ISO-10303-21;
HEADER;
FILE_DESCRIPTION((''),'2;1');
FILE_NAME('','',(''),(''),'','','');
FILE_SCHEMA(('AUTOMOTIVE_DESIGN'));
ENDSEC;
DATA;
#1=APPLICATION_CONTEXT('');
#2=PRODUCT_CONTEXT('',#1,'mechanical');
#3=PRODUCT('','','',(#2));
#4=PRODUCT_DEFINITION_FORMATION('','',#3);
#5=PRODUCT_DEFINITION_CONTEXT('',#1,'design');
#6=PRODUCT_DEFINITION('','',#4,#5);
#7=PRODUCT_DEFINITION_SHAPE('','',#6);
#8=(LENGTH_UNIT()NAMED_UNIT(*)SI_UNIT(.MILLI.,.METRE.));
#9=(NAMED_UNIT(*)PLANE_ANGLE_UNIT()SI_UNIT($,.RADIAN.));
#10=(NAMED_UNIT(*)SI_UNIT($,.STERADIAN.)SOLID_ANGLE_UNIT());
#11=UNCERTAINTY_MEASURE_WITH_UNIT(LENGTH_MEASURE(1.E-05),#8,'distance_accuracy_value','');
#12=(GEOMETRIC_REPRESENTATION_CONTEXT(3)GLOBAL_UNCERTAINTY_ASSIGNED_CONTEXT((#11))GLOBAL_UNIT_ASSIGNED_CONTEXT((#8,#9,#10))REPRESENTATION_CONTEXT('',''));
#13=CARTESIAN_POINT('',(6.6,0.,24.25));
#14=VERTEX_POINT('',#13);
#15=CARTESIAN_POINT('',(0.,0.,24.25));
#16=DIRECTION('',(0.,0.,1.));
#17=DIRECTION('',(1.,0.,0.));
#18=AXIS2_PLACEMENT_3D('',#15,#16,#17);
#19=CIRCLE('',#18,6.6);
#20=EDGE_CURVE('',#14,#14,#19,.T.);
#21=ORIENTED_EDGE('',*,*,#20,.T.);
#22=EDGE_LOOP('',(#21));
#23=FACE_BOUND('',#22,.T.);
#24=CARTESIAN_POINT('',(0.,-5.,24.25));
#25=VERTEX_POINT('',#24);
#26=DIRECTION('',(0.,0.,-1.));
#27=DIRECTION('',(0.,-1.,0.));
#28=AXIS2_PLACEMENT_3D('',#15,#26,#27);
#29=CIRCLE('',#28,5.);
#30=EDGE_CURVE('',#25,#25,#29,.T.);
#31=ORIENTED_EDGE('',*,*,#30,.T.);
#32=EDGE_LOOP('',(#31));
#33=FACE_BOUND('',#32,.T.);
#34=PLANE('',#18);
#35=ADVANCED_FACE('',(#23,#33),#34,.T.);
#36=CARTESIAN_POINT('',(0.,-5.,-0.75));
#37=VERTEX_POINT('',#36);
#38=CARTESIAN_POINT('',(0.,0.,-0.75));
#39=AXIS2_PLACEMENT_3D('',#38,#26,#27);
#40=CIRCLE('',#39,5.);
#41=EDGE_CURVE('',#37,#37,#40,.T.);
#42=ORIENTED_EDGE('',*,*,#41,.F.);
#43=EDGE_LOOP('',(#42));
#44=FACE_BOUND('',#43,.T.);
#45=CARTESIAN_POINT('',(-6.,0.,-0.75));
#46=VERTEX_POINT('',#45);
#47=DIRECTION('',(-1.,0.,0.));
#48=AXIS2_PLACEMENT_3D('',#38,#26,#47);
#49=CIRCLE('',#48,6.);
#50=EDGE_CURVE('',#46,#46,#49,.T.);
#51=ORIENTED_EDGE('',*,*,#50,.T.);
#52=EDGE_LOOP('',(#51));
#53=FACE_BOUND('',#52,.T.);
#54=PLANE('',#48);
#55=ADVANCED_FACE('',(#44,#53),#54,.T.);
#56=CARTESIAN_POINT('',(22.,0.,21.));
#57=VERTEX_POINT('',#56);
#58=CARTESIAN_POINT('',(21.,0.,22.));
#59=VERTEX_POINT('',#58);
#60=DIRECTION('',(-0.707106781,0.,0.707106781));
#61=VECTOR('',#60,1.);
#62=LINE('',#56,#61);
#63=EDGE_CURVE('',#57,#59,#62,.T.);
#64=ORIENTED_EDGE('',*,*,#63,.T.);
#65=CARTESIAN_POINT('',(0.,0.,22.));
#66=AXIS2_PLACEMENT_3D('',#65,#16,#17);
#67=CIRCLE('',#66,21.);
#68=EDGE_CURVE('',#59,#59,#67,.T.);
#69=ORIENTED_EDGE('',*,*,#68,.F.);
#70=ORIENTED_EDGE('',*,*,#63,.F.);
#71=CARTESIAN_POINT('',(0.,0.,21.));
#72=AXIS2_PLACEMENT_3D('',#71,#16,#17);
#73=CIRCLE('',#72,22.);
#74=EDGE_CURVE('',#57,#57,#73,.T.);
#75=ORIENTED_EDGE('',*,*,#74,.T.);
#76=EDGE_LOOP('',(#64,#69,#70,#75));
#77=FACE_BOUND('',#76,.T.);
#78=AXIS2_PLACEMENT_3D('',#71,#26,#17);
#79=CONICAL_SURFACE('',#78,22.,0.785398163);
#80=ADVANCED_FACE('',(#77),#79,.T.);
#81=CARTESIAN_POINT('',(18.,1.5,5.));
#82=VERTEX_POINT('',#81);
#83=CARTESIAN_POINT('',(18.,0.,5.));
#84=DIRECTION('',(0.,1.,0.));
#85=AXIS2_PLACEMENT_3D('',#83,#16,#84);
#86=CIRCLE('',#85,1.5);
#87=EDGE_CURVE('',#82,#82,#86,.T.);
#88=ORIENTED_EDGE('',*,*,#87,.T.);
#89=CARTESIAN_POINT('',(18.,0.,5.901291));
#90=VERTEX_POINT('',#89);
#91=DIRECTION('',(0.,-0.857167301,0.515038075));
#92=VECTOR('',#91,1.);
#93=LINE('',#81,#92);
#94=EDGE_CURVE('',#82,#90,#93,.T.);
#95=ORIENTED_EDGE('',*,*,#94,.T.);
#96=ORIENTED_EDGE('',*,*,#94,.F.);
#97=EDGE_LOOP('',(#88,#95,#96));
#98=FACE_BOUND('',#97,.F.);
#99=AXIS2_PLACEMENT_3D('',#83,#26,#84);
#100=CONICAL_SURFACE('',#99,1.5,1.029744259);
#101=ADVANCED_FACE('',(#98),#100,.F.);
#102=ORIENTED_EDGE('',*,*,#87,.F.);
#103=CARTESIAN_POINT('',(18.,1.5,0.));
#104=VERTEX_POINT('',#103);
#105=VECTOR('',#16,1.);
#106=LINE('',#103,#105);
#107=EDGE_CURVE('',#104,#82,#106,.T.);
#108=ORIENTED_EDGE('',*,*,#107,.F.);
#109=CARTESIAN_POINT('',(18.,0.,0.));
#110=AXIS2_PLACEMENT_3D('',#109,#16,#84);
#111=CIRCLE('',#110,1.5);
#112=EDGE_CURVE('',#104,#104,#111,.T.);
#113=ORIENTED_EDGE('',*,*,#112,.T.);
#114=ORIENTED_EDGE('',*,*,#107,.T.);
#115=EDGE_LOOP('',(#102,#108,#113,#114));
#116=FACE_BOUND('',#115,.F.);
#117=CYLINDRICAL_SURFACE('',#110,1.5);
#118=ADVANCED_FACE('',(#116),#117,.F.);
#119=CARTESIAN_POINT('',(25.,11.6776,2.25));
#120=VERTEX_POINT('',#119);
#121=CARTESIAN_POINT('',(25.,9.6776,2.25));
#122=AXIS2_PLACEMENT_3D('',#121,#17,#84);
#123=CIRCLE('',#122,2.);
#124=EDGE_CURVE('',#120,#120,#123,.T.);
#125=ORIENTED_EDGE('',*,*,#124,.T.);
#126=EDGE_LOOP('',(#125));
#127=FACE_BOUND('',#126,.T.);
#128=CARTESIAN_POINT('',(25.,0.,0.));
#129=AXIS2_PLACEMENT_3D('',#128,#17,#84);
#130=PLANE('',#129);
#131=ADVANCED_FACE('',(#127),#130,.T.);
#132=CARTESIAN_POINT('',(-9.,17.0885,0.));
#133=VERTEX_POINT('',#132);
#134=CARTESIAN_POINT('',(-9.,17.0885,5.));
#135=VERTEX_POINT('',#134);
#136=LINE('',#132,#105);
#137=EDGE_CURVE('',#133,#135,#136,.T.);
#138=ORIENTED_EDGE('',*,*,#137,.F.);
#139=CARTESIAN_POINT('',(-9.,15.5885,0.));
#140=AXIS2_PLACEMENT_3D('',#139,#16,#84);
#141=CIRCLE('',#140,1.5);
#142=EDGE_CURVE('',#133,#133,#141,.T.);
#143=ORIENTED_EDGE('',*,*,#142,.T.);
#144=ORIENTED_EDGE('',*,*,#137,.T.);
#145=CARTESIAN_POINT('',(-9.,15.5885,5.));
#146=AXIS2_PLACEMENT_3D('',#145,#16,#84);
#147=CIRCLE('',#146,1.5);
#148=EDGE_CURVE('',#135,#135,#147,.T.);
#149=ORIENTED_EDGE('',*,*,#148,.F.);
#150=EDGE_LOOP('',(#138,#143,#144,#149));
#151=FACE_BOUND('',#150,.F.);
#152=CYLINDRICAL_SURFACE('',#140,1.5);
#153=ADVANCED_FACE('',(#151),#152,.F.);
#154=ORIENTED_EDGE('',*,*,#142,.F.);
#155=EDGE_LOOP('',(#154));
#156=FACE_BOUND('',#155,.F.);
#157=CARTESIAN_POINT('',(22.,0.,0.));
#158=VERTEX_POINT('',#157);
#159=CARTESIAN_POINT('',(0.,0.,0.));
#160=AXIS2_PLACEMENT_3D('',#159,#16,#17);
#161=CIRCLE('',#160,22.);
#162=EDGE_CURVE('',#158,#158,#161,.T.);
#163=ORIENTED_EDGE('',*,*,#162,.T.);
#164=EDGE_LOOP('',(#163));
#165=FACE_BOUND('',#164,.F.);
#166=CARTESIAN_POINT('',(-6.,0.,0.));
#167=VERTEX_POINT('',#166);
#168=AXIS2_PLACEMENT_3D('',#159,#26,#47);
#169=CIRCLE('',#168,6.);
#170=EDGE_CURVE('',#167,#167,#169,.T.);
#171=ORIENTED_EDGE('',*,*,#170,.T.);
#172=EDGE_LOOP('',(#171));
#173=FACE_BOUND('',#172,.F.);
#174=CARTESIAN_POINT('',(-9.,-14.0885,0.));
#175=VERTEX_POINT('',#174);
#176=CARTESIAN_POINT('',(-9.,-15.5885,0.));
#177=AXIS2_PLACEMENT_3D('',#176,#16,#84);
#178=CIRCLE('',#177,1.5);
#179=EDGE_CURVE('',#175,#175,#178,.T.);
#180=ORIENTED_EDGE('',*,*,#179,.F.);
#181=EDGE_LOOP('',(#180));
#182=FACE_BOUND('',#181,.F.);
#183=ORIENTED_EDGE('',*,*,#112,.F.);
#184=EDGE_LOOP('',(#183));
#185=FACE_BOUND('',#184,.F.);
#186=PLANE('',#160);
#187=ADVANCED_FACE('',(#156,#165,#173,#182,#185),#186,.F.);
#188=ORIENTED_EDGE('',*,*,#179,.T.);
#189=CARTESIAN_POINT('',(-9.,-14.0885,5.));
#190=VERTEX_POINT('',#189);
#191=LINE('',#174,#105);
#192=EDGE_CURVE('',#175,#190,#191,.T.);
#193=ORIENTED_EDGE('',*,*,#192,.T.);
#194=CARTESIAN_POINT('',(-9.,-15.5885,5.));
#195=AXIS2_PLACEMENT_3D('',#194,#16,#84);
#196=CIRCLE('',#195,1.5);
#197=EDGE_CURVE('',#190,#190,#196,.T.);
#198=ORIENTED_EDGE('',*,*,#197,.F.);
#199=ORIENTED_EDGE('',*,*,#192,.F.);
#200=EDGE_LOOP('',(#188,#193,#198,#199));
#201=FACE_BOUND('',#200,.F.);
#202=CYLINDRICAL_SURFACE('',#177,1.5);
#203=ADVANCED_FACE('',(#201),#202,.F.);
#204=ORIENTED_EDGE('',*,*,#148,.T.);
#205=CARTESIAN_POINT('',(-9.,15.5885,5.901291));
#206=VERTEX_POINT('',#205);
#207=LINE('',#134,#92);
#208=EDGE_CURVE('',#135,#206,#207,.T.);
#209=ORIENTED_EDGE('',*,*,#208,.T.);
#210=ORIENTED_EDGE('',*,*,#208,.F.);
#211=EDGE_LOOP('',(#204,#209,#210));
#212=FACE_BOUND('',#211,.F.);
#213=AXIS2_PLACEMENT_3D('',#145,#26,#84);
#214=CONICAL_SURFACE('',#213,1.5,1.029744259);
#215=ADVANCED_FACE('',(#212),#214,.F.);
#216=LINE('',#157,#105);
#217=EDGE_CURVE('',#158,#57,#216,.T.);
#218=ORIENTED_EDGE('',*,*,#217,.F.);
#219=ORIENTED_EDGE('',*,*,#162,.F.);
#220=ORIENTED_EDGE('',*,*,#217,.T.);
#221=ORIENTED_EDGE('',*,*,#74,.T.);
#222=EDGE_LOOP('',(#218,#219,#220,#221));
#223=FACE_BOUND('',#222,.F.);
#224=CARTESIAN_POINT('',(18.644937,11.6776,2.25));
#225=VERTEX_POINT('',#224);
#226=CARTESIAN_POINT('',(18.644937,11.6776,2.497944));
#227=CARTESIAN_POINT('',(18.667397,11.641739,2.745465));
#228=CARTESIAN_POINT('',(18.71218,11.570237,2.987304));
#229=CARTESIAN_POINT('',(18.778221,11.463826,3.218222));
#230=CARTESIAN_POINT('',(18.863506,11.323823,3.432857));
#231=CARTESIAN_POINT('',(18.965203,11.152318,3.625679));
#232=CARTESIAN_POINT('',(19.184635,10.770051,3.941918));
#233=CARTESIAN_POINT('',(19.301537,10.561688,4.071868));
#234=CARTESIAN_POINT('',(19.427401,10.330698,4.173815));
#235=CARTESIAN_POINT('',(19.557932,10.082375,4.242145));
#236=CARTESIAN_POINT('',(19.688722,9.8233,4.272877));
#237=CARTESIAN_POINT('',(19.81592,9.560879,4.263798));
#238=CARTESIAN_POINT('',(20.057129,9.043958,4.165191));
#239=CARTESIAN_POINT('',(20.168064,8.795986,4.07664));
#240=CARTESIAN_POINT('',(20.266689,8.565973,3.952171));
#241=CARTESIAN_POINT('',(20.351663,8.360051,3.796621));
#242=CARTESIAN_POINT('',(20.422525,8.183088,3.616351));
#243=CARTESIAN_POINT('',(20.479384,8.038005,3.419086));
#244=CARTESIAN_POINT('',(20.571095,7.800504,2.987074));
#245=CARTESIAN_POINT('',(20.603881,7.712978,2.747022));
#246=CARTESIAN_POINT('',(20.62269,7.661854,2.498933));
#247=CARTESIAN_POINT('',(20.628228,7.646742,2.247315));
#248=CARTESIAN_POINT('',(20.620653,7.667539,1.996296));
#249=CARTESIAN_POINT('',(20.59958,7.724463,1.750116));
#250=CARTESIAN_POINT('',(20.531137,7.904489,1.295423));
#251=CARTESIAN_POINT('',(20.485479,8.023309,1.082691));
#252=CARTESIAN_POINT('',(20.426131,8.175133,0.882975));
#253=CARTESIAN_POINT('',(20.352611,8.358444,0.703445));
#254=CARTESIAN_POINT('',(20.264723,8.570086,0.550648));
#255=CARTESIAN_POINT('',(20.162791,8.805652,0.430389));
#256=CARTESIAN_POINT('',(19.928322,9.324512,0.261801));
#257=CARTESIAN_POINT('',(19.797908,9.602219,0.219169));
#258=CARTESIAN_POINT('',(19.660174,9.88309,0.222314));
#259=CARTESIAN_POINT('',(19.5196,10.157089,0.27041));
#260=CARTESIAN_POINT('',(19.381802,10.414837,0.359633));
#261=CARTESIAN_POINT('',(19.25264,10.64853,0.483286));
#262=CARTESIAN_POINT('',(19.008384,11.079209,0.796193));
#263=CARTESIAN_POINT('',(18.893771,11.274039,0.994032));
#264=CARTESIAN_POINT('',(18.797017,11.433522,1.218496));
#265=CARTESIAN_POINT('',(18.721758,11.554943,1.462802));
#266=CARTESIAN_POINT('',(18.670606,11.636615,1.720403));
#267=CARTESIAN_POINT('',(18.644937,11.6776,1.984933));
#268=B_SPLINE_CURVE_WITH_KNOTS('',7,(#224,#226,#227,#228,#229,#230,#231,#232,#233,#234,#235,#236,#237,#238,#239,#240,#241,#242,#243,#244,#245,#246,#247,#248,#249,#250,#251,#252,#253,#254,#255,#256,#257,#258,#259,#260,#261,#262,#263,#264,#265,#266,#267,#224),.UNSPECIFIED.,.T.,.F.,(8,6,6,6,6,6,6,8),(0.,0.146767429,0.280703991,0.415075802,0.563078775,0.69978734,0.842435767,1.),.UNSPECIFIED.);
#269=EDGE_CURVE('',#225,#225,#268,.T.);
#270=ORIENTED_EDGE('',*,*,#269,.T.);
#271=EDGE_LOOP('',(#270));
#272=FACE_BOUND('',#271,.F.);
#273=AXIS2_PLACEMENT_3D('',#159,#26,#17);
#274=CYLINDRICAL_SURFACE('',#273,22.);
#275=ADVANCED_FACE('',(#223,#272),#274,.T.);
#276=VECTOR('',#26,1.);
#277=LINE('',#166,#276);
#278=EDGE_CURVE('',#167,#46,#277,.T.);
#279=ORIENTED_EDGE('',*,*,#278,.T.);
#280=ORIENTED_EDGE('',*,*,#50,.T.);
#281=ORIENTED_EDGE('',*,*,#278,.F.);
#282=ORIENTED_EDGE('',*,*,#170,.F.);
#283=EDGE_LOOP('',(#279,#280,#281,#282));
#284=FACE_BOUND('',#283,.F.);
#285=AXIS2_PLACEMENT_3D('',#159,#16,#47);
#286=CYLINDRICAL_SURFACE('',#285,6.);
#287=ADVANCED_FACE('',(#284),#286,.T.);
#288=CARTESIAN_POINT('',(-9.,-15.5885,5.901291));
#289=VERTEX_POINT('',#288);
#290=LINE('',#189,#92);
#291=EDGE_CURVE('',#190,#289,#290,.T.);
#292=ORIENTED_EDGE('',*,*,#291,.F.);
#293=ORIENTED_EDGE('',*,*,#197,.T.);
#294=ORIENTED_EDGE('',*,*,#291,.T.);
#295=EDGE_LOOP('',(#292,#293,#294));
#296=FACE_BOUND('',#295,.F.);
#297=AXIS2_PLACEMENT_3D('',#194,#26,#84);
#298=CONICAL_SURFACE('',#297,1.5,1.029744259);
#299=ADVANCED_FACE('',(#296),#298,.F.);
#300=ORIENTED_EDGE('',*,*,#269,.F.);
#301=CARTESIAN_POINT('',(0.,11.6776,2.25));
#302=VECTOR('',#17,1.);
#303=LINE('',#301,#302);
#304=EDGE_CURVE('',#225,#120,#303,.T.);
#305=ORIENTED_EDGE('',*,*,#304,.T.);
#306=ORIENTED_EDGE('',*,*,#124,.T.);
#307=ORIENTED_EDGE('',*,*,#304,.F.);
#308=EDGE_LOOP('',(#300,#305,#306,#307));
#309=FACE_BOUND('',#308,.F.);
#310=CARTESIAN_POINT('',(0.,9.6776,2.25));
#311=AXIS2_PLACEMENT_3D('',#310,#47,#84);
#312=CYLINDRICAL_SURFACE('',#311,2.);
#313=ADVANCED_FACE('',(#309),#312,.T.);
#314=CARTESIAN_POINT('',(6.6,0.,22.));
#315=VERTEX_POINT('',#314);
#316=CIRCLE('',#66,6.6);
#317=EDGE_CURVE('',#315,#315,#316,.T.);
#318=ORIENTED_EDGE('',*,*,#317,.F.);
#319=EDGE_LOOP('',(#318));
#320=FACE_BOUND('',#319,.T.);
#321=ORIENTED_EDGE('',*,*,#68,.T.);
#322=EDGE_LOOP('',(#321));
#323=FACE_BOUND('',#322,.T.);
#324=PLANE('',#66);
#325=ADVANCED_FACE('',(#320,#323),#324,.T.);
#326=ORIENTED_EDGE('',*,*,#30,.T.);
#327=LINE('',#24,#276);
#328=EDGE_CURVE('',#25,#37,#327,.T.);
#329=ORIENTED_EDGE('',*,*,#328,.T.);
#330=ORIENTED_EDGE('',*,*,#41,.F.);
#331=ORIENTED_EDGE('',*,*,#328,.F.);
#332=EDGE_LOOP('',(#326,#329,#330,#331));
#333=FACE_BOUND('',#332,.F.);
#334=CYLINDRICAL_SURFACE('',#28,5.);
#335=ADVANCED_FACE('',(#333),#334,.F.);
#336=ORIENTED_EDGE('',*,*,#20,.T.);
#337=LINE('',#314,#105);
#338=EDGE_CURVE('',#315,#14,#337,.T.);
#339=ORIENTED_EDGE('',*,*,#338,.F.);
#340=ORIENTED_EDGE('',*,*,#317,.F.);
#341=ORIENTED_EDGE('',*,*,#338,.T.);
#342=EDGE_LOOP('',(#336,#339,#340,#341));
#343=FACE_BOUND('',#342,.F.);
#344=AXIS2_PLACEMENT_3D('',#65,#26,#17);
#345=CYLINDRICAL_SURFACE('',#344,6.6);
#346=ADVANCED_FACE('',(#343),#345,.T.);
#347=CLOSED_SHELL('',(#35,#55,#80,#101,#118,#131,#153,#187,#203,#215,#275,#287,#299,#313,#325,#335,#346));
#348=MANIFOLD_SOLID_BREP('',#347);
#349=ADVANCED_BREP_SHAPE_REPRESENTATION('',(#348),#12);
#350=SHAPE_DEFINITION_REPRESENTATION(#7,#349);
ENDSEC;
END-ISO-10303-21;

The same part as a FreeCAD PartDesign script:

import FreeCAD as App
import Part
import Sketcher
from FreeCAD import Vector


def edges_at(feature, points):
    """Names of the edges that pass closest to the given points."""
    edges = feature.Shape.Edges
    near = lambda p: min(range(len(edges)), key=lambda i: edges[i].distToShape(Part.Vertex(*p))[0])
    return sorted({f"Edge{near(p) + 1}" for p in points})

doc = App.newDocument("Part")
body = doc.addObject("PartDesign::Body", "Body")

# Sketch on XY plane
sketch1 = doc.addObject("Sketcher::SketchObject", "Sketch")
body.addObject(sketch1)
sketch1.AttachmentSupport = (doc.XY_Plane, [""])
sketch1.MapMode = "FlatFace"
sketch1.addGeometry(Part.Circle(Vector(0, 0, 0), Vector(0, 0, 1), 22), False)
sketch1.addConstraint([
    Sketcher.Constraint("Coincident", 0, 3, -1, 1),
    Sketcher.Constraint("Diameter", 0, 44.0),
])
pad1 = doc.addObject("PartDesign::Pad", "Pad")
body.addObject(pad1)
pad1.Profile = sketch1
pad1.Length = 22
doc.recompute()

chamfer = doc.addObject("PartDesign::Chamfer", "Chamfer")
body.addObject(chamfer)
chamfer.Base = (pad1, edges_at(pad1, [(-22, 0, 22)]))
chamfer.Size = 1

# Sketch on XY plane
sketch2 = doc.addObject("Sketcher::SketchObject", "Sketch001")
body.addObject(sketch2)
sketch2.AttachmentSupport = (doc.XY_Plane, [""])
sketch2.MapMode = "FlatFace"
sketch2.AttachmentOffset = App.Placement(Vector(0, 0, 22), App.Rotation())
sketch2.addGeometry(Part.Circle(Vector(0, 0, 0), Vector(0, 0, 1), 7), False)
sketch2.addConstraint([
    Sketcher.Constraint("Coincident", 0, 3, -1, 1),
    Sketcher.Constraint("Diameter", 0, 13.2),
])
pad2 = doc.addObject("PartDesign::Pad", "Pad001")
body.addObject(pad2)
pad2.Profile = sketch2
pad2.Length = 2.25

# Sketch on YZ plane
sketch3 = doc.addObject("Sketcher::SketchObject", "Sketch002")
body.addObject(sketch3)
sketch3.AttachmentSupport = (doc.YZ_Plane, [""])
sketch3.MapMode = "FlatFace"
sketch3.addGeometry(Part.Circle(Vector(9.7, 2.2, 0), Vector(0, 0, 1), 2), False)
sketch3.addConstraint([
    Sketcher.Constraint("Diameter", 0, 4.0),
    Sketcher.Constraint("DistanceY", -1, 1, 0, 3, 2.25),
    Sketcher.Constraint("DistanceX", -1, 1, 0, 3, 9.6776),
])
pad3 = doc.addObject("PartDesign::Pad", "Pad002")
body.addObject(pad3)
pad3.Profile = sketch3
pad3.Length = 25

# Sketch on XY plane
sketch4 = doc.addObject("Sketcher::SketchObject", "Sketch003")
body.addObject(sketch4)
sketch4.AttachmentSupport = (doc.XY_Plane, [""])
sketch4.MapMode = "FlatFace"
sketch4.addGeometry(Part.Circle(Vector(0, 0, 0), Vector(0, 0, 1), 6), False)
sketch4.addConstraint([
    Sketcher.Constraint("Coincident", 0, 3, -1, 1),
    Sketcher.Constraint("Diameter", 0, 12.0),
])
pad4 = doc.addObject("PartDesign::Pad", "Pad003")
body.addObject(pad4)
pad4.Profile = sketch4
pad4.Length = 0.75
pad4.Reversed = True

# Sketch on XY plane
sketch5 = doc.addObject("Sketcher::SketchObject", "Sketch004")
body.addObject(sketch5)
sketch5.AttachmentSupport = (doc.XY_Plane, [""])
sketch5.MapMode = "FlatFace"
sketch5.AttachmentOffset = App.Placement(Vector(0, 0, 24.25), App.Rotation())
sketch5.addGeometry(Part.Circle(Vector(0, 0, 0), Vector(0, 0, 1), 5), False)
sketch5.addConstraint([
    Sketcher.Constraint("Coincident", 0, 3, -1, 1),
    Sketcher.Constraint("Diameter", 0, 10.0),
])
doc.recompute()
hole = doc.addObject("PartDesign::Hole", "Hole")
body.addObject(hole)
hole.Profile = sketch5
hole.ThreadType = "None"
hole.Diameter = 10
hole.DepthType = "ThroughAll"

# Sketch on XY plane
sketch6 = doc.addObject("Sketcher::SketchObject", "Sketch005")
body.addObject(sketch6)
sketch6.AttachmentSupport = (doc.XY_Plane, [""])
sketch6.MapMode = "FlatFace"
sketch6.addGeometry([
    Part.Circle(Vector(18, 0, 0), Vector(0, 0, 1), 1.5),
    Part.Circle(Vector(-9, -15.6, 0), Vector(0, 0, 1), 1.5),
    Part.Circle(Vector(-9, 15.6, 0), Vector(0, 0, 1), 1.5),
], False)
sketch6.addConstraint([
    Sketcher.Constraint("Equal", 0, 1),
    Sketcher.Constraint("Equal", 1, 2),
    Sketcher.Constraint("Symmetric", 1, 3, 2, 3, -1),
    Sketcher.Constraint("PointOnObject", 0, 3, -1),
    Sketcher.Constraint("Diameter", 0, 3.0),
    Sketcher.Constraint("DistanceX", -1, 1, 0, 3, 18.0),
    Sketcher.Constraint("DistanceX", 1, 3, -1, 1, 9.0),
    Sketcher.Constraint("DistanceY", 1, 3, 2, 3, 31.177),
])
doc.recompute()
hole2 = doc.addObject("PartDesign::Hole", "Hole001")
body.addObject(hole2)
hole2.Profile = sketch6
hole2.ThreadType = "None"
hole2.Diameter = 3
hole2.DepthType = "Dimension"
hole2.Depth = 5
hole2.DrillPoint = "Angled"
hole2.DrillPointAngle = 118
hole2.Reversed = True

doc.recompute()
